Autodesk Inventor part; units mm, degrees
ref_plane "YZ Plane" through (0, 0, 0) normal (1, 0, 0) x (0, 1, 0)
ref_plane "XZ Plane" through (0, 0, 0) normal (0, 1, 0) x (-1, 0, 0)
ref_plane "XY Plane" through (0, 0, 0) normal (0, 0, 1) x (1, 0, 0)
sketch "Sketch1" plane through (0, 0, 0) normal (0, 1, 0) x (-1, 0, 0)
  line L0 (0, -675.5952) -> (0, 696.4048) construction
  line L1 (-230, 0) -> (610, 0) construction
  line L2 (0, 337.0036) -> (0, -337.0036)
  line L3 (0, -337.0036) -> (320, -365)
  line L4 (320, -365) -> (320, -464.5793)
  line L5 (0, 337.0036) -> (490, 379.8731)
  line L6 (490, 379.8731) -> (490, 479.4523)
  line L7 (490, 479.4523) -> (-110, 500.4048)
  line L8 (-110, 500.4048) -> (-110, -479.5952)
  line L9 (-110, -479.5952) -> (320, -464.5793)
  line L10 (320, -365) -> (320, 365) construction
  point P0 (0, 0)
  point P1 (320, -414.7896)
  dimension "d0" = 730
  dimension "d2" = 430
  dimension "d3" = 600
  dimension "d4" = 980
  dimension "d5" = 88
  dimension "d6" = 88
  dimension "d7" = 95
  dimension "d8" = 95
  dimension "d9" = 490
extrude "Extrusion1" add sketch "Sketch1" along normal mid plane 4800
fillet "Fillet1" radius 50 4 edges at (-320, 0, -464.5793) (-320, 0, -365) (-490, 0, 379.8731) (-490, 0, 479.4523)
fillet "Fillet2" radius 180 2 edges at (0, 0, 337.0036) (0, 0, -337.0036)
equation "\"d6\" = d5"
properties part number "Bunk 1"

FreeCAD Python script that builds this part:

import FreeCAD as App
import Part
import Sketcher
Q = App.Units.Quantity


def edges_at(feature, points):
    """Names of the edges that pass closest to the given points."""
    edges = feature.Shape.Edges
    near = lambda p: min(range(len(edges)), key=lambda i: edges[i].distToShape(Part.Vertex(*p))[0])
    return sorted({f"Edge{near(p) + 1}" for p in points})

doc = App.newDocument("Part")
body = doc.addObject("PartDesign::Body", "Body")

# Sketch on XZ plane
sketch1 = doc.addObject("Sketcher::SketchObject", "Sketch")
body.addObject(sketch1)
sketch1.AttachmentSupport = (doc.XZ_Plane, [""])
sketch1.MapMode = "FlatFace"
sketch1.addGeometry([
    Part.LineSegment(App.Vector(0, -337.0036, 0), App.Vector(0, 337.0036, 0)),  # 0
    Part.LineSegment(App.Vector(0, 337.0036, 0), App.Vector(-490, 379.8731, 0)),  # 1
    Part.LineSegment(App.Vector(-490, 379.8731, 0), App.Vector(-490, 479.4523, 0)),  # 2
    Part.LineSegment(App.Vector(-490, 479.4523, 0), App.Vector(110, 500.4048, 0)),  # 3
    Part.LineSegment(App.Vector(110, 500.4048, 0), App.Vector(110, -479.5952, 0)),  # 4
    Part.LineSegment(App.Vector(110, -479.5952, 0), App.Vector(-320, -464.5793, 0)),  # 5
    Part.LineSegment(App.Vector(-320, -464.5793, 0), App.Vector(-320, -365, 0)),  # 6
    Part.LineSegment(App.Vector(-320, -365, 0), App.Vector(0, -337.0036, 0)),  # 7
], False)
sketch1.addConstraint([
    Sketcher.Constraint("Coincident", 0, 2, 1, 1),
    Sketcher.Constraint("Coincident", 1, 2, 2, 1),
    Sketcher.Constraint("Coincident", 2, 2, 3, 1),
    Sketcher.Constraint("Coincident", 3, 2, 4, 1),
    Sketcher.Constraint("Coincident", 4, 2, 5, 1),
    Sketcher.Constraint("Coincident", 5, 2, 6, 1),
    Sketcher.Constraint("Coincident", 6, 2, 7, 1),
    Sketcher.Constraint("Coincident", 7, 2, 0, 1),
    Sketcher.Constraint("Vertical", 0),
    Sketcher.Constraint("Vertical", 2),
    Sketcher.Constraint("Vertical", 4),
    Sketcher.Constraint("Vertical", 6),
    Sketcher.Constraint("Symmetric", 0, 2, 7, 2, -1, 1),
    Sketcher.Constraint("Equal", 2, 6),
    Sketcher.Constraint("DistanceY", 4, 2, 4, 1, 980.0),
    Sketcher.Constraint("DistanceX", 1, 2, -1, 1, 490.0),
    Sketcher.Constraint("DistanceX", 2, 2, 3, 2, 600.0),
    Sketcher.Constraint("DistanceX", 5, 2, 4, 2, 430.0),
    Sketcher.Constraint("Angle", 1, Q("175 deg")),
    Sketcher.Constraint("Angle", 3, Q("2 deg")),
    Sketcher.Constraint("Angle", 5, Q("178 deg")),
    Sketcher.Constraint("Angle", 7, Q("5 deg")),
    Sketcher.Constraint("DistanceY", 6, 2, -1, 1, 365.0),
])
pad1 = doc.addObject("PartDesign::Pad", "Pad")
body.addObject(pad1)
pad1.Profile = sketch1
pad1.Length = 4800
pad1.Midplane = True
doc.recompute()

fillet = doc.addObject("PartDesign::Fillet", "Fillet")
body.addObject(fillet)
fillet.Base = (pad1, edges_at(pad1, [
    (-320, 0, -464.579),
    (-320, 0, -365),
    (-490, 0, 379.873),
    (-490, 0, 479.452),
]))
fillet.Radius = 50
doc.recompute()

fillet2 = doc.addObject("PartDesign::Fillet", "Fillet001")
body.addObject(fillet2)
fillet2.Base = (fillet, edges_at(fillet, [(0, 0, 337.004), (0, 0, -337.004)]))
fillet2.Radius = 180

doc.recompute()
